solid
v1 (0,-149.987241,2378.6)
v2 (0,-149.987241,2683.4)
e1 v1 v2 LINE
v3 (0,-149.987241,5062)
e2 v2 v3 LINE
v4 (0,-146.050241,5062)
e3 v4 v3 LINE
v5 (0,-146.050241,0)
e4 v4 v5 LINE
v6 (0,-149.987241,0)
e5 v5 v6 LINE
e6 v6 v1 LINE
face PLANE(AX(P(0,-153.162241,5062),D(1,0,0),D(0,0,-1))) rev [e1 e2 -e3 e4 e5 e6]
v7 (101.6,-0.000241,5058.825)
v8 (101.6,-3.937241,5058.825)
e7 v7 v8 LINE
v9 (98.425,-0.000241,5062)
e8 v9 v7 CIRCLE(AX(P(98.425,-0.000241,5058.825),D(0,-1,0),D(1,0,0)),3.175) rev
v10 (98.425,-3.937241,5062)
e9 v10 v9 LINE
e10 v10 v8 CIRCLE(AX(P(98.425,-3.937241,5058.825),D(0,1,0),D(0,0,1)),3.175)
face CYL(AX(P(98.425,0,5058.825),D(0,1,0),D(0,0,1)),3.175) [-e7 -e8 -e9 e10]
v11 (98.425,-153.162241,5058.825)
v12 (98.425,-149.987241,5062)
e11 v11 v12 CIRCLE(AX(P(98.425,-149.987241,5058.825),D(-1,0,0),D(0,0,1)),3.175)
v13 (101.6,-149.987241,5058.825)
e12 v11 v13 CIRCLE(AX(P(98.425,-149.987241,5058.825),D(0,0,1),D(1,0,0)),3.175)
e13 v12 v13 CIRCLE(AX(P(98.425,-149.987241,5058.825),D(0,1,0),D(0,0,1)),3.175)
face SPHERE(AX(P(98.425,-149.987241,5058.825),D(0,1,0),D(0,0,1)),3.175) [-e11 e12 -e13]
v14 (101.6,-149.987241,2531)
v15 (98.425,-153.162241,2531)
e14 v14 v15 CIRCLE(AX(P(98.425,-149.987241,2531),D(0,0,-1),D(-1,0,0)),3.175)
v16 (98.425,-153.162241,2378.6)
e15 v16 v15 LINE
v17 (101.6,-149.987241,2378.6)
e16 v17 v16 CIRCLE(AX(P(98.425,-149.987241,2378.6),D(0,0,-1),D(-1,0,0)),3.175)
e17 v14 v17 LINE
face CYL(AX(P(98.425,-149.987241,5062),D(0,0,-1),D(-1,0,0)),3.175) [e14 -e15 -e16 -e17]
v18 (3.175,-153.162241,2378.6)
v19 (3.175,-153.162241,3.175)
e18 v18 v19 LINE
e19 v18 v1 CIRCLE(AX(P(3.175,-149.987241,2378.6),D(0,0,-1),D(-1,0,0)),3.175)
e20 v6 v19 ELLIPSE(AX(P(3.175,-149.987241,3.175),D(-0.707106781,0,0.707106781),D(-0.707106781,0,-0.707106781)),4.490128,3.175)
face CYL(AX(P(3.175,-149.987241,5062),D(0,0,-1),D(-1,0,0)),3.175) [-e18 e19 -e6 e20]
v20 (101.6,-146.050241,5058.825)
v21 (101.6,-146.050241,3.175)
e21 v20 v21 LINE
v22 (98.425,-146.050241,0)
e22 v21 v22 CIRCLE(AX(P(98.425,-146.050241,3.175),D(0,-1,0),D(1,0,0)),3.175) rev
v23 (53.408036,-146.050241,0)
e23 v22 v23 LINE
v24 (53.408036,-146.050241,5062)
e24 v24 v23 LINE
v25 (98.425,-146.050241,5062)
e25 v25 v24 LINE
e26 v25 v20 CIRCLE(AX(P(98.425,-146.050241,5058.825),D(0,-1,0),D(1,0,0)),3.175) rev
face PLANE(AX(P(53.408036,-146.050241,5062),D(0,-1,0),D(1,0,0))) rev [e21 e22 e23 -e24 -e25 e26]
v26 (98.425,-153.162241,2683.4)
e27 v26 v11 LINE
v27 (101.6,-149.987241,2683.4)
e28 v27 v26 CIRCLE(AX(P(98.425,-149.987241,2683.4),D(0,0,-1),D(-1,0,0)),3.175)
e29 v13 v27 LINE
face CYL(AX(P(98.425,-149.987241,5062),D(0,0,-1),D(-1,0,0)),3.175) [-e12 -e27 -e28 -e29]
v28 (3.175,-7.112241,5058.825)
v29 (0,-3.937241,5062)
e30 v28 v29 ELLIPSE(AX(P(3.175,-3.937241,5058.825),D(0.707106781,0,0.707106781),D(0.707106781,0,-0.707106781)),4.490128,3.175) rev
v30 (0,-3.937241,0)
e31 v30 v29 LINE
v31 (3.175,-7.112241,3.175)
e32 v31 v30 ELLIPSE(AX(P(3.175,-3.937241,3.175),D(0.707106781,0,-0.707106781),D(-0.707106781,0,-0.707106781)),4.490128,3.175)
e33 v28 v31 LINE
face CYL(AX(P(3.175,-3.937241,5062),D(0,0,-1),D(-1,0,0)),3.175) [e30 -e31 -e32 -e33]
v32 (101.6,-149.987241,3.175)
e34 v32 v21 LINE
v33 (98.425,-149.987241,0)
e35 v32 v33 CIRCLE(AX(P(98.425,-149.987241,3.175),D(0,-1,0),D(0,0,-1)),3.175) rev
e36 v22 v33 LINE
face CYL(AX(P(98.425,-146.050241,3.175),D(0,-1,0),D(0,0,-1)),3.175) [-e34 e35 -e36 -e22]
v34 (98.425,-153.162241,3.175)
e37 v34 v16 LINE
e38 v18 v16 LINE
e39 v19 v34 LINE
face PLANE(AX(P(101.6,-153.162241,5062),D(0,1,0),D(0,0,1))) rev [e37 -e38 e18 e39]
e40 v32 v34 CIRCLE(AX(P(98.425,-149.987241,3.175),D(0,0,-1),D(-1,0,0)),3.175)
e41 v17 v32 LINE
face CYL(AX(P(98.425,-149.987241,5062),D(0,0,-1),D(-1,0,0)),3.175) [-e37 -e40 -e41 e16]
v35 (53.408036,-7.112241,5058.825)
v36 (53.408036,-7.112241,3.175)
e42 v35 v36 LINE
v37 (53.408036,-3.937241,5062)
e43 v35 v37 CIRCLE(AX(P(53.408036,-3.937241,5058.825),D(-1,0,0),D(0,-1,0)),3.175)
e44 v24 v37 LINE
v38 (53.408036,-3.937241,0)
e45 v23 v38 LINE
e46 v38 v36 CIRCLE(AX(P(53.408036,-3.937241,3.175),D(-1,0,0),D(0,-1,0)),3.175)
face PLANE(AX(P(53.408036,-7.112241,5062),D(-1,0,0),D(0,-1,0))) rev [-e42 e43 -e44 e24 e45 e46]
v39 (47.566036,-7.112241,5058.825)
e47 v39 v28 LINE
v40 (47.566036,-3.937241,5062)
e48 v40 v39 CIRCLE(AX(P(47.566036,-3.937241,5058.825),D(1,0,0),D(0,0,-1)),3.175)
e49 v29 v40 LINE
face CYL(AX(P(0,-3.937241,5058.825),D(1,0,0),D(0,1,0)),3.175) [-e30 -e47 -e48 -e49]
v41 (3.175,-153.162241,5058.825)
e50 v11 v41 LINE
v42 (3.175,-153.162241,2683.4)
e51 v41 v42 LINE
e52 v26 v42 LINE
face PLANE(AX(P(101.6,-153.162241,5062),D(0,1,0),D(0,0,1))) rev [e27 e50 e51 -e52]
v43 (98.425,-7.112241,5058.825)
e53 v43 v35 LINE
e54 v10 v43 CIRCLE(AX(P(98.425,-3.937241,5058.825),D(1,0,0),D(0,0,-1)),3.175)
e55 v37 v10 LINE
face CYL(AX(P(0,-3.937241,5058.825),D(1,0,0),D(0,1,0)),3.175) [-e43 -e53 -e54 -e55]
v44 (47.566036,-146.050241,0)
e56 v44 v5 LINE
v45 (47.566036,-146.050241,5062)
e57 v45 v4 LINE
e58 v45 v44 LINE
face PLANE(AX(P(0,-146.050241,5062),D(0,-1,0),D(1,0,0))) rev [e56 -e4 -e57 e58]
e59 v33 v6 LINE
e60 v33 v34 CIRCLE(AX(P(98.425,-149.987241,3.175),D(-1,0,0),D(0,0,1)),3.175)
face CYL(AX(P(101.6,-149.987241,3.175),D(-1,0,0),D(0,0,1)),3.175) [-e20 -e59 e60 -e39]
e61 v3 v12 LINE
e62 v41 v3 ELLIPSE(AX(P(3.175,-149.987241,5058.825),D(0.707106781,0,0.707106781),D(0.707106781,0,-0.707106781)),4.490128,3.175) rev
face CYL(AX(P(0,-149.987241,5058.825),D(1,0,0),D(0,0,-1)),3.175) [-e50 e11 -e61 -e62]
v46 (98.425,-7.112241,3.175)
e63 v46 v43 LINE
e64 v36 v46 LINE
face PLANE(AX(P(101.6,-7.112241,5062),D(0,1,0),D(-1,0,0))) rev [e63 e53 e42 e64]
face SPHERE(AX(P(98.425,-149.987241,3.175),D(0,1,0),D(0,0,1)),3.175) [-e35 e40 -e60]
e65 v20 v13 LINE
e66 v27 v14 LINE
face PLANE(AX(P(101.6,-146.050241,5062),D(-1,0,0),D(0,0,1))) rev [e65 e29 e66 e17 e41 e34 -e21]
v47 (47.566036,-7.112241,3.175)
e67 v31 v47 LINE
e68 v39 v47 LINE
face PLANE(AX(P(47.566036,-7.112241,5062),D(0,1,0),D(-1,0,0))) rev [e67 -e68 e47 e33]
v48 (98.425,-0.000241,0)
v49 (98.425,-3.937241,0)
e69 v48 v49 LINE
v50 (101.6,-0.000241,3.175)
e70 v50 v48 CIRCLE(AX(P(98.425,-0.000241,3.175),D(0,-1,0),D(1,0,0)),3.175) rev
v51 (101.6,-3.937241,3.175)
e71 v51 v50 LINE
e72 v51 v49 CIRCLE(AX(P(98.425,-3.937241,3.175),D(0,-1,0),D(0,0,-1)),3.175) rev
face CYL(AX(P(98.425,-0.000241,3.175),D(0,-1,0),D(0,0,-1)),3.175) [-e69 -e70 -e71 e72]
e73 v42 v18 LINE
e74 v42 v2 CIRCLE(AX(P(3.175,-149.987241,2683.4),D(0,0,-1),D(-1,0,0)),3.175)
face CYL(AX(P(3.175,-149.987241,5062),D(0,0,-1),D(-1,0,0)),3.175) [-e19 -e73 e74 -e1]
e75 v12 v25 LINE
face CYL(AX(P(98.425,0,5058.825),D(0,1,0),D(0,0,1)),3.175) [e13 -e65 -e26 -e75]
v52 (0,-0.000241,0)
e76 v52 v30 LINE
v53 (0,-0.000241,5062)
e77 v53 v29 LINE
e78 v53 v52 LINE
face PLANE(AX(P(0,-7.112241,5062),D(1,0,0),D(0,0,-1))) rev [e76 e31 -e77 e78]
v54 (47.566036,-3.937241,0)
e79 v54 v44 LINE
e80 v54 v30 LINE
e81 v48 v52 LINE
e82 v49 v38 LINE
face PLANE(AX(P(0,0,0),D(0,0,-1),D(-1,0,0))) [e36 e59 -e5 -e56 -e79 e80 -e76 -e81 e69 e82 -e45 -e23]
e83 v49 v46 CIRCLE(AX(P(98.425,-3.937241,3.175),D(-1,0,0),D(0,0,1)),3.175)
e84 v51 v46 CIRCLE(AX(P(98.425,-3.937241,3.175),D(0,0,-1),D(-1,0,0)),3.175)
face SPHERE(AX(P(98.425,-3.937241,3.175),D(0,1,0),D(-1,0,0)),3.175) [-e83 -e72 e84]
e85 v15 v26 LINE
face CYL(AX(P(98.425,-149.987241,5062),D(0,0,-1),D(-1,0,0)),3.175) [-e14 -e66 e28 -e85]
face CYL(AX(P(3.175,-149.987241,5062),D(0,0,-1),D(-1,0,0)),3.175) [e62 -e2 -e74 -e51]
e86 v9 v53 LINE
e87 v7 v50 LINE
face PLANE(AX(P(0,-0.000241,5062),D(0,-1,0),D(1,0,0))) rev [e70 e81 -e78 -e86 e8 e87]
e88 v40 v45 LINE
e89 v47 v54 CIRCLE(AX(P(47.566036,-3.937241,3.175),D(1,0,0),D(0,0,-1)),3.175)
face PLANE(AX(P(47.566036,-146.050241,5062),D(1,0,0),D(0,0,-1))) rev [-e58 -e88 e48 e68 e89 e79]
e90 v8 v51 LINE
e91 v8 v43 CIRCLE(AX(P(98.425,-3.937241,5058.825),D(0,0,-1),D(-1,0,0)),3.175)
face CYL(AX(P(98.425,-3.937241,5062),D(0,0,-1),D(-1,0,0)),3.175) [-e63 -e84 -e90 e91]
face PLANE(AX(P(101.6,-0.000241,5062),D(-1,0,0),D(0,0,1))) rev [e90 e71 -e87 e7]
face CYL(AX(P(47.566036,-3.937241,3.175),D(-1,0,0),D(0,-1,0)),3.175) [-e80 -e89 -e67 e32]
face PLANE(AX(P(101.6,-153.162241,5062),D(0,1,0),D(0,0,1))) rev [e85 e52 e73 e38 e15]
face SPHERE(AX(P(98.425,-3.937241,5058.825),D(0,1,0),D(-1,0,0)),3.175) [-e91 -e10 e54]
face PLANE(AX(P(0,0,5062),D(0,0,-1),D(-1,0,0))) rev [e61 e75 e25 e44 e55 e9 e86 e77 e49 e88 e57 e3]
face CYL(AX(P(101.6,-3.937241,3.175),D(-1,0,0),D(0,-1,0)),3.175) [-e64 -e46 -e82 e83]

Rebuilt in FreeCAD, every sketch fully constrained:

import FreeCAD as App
import Part
import Sketcher

V = App.Vector
Q = App.Units.Quantity


def edges_at(feature, points):
    """Names of the edges that pass closest to the given points."""
    edges = feature.Shape.Edges
    near = lambda p: min(range(len(edges)), key=lambda i: edges[i].distToShape(Part.Vertex(*p))[0])
    return sorted({f"Edge{near(p) + 1}" for p in points})

doc = App.newDocument("Part")
body = doc.addObject("PartDesign::Body", "Body")

sketch1 = body.newObject("Sketcher::SketchObject", "Sketch")
sketch1.AttachmentSupport = (doc.getObject("XY_Plane"), [""])
sketch1.MapMode = "FlatFace"
sketch1.addGeometry([
    Part.LineSegment(V(101.6, -0.000241, 0), V(0, -0.000241, 0)),
    Part.LineSegment(V(0, -0.000241, 0), V(0, -7.112241, 0)),
    Part.LineSegment(V(0, -7.112241, 0), V(47.566036, -7.112241, 0)),
    Part.LineSegment(V(47.566036, -7.112241, 0), V(47.566036, -146.050241, 0)),
    Part.LineSegment(V(47.566036, -146.050241, 0), V(0, -146.050241, 0)),
    Part.LineSegment(V(0, -146.050241, 0), V(0, -153.162241, 0)),
    Part.LineSegment(V(0, -153.162241, 0), V(101.6, -153.162241, 0)),
    Part.LineSegment(V(101.6, -153.162241, 0), V(101.6, -146.050241, 0)),
    Part.LineSegment(V(101.6, -146.050241, 0), V(53.408036, -146.050241, 0)),
    Part.LineSegment(V(53.408036, -146.050241, 0), V(53.408036, -7.112241, 0)),
    Part.LineSegment(V(53.408036, -7.112241, 0), V(101.6, -7.112241, 0)),
    Part.LineSegment(V(101.6, -7.112241, 0), V(101.6, -0.000241, 0)),
], False)
sketch1.addConstraint([
    Sketcher.Constraint("Coincident", 0, 2, 1, 1),
    Sketcher.Constraint("Coincident", 1, 2, 2, 1),
    Sketcher.Constraint("Coincident", 2, 2, 3, 1),
    Sketcher.Constraint("Coincident", 3, 2, 4, 1),
    Sketcher.Constraint("Coincident", 4, 2, 5, 1),
    Sketcher.Constraint("Coincident", 5, 2, 6, 1),
    Sketcher.Constraint("Coincident", 6, 2, 7, 1),
    Sketcher.Constraint("Coincident", 7, 2, 8, 1),
    Sketcher.Constraint("Coincident", 8, 2, 9, 1),
    Sketcher.Constraint("Coincident", 9, 2, 10, 1),
    Sketcher.Constraint("Coincident", 10, 2, 11, 1),
    Sketcher.Constraint("Coincident", 11, 2, 0, 1),
    Sketcher.Constraint("Horizontal", 0),
    Sketcher.Constraint("Vertical", 1),
    Sketcher.Constraint("Horizontal", 2),
    Sketcher.Constraint("Vertical", 3),
    Sketcher.Constraint("Horizontal", 4),
    Sketcher.Constraint("Vertical", 5),
    Sketcher.Constraint("Horizontal", 6),
    Sketcher.Constraint("Vertical", 7),
    Sketcher.Constraint("Horizontal", 8),
    Sketcher.Constraint("Vertical", 9),
    Sketcher.Constraint("Horizontal", 10),
    Sketcher.Constraint("Vertical", 11),
    Sketcher.Constraint("PointOnObject", 0, 2, -2),
    Sketcher.Constraint("PointOnObject", 4, 2, -2),
    Sketcher.Constraint("Horizontal", 4, 2, 7, 2),
    Sketcher.Constraint("Horizontal", 2, 2, 9, 2),
    Sketcher.Constraint("Vertical", 7, 2, 10, 2),
    Sketcher.Constraint("Equal", 1, 5),
    Sketcher.Constraint("DistanceX", 0, 2, 0, 1, Q("4 in")),
    Sketcher.Constraint("DistanceY", 1, 2, 1, 1, Q("0.28 in")),
    Sketcher.Constraint("DistanceY", 3, 2, 3, 1, Q("5.47 in")),
    Sketcher.Constraint("DistanceX", 3, 2, 8, 2, Q("0.23 in")),
    Sketcher.Constraint("DistanceX", 2, 1, 2, 2, 47.566036),
    Sketcher.Constraint("DistanceY", 0, 2, -1, 1, 0.000241),
])
pad1 = body.newObject("PartDesign::Pad", "Pad")
pad1.Profile = sketch1
pad1.Length = 5062
doc.recompute()

fillet = body.newObject("PartDesign::Fillet", "Fillet")
fillet.Base = (pad1, edges_at(pad1, [
    (101.6, -3.556, 0),
    (101.6, -149.606, 0),
    (101.6, -149.606, 5062),
    (101.6, -3.556, 5062),
]))
fillet.Radius = Q("0.125 in")
doc.recompute()

fillet2 = body.newObject("PartDesign::Fillet", "Fillet001")
fillet2.Base = (fillet, edges_at(fillet, [
    (49.212, -153.162, 0),
    (49.212, -153.162, 5062),
    (0, -153.162, 2531),
    (101.6, -153.162, 2531),
    (101.6, -153.162, 2531),
    (101.6, -153.162, 2531),
    (0, -153.162, 2531),
    (0, -153.162, 2531),
    (101.6, -153.162, 2531),
    (100.67, -153.162, 5061.07),
    (100.67, -153.162, 0.93),
]))
fillet2.Radius = Q("0.125 in")
doc.recompute()

fillet3 = body.newObject("PartDesign::Fillet", "Fillet002")
fillet3.Base = (fillet2, edges_at(fillet2, [
    (75.917, -7.112, 0),
    (23.783, -7.112, 0),
    (0, -7.112, 2531),
    (75.917, -7.112, 5062),
    (101.6, -7.112, 2531),
    (100.67, -7.112, 0.93),
    (100.67, -7.112, 5061.07),
    (23.783, -7.112, 5062),
]))
fillet3.Radius = Q("0.125 in")

doc.recompute()
